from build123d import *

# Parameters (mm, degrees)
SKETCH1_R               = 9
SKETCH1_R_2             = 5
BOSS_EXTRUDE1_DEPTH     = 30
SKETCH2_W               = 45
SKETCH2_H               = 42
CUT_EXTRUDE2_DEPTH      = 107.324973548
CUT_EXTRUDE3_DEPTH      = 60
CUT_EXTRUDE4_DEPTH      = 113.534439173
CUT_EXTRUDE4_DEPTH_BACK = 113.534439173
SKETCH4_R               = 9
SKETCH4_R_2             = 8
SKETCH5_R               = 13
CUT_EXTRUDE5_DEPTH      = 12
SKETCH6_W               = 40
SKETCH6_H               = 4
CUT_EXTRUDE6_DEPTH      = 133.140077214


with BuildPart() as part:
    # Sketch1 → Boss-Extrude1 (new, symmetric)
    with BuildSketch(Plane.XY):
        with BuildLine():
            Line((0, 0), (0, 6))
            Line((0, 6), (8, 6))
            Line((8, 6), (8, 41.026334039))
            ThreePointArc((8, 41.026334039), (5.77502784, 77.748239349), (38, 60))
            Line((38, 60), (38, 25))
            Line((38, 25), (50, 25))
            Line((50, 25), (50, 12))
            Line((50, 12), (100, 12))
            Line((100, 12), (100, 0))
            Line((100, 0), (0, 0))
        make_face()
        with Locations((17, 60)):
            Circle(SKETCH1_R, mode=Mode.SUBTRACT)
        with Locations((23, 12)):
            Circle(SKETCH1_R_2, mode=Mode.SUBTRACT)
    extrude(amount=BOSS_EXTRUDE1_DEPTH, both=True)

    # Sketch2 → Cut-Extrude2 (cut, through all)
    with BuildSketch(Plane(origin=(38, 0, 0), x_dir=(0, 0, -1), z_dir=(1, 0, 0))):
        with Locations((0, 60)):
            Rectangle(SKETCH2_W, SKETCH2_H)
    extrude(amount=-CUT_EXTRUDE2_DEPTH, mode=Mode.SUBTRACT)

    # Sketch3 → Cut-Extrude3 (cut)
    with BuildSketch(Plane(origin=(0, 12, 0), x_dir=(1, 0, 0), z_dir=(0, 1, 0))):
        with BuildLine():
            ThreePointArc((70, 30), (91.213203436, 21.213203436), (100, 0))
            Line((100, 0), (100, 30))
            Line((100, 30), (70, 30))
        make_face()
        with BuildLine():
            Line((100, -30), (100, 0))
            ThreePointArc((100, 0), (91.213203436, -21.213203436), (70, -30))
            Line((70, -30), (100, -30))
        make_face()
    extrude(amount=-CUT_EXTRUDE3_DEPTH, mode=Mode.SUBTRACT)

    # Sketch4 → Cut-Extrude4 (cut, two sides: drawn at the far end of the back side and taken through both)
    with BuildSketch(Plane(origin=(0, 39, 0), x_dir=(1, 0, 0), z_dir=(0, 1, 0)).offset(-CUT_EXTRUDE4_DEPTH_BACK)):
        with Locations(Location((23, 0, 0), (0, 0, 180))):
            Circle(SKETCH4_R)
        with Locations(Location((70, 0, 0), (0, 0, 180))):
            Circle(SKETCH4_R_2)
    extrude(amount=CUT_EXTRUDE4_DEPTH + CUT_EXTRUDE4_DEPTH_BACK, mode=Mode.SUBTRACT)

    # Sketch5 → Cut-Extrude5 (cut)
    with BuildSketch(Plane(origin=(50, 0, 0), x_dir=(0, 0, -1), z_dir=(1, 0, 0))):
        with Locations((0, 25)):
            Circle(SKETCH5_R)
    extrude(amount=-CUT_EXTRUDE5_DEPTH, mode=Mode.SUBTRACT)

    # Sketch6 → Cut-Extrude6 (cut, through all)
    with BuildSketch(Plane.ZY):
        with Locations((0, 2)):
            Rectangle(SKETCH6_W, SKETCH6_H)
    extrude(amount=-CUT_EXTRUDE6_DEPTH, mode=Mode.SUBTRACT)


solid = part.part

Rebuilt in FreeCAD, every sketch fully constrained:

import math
import FreeCAD as App
import Part
import Sketcher
from FreeCAD import Vector


def add_polygon(sketch, points):
    """Adds a closed chain of lines whose ends are joined by coincident constraints."""
    first, n = sketch.GeometryCount, len(points)
    for a, b in zip(points, points[1:] + points[:1]):
        sketch.addGeometry(Part.LineSegment(App.Vector(*a, 0), App.Vector(*b, 0)), False)
    for i in range(n):
        sketch.addConstraint(Sketcher.Constraint("Coincident", first + i, 2, first + (i + 1) % n, 1))

doc = App.newDocument("Part")
body = doc.addObject("PartDesign::Body", "Body")

# Sketch on XY plane
sketch1 = body.newObject("Sketcher::SketchObject", "Sketch")
sketch1.AttachmentSupport = (doc.getObject("XY_Plane"), [""])
sketch1.MapMode = "FlatFace"
sketch1.addGeometry(Part.LineSegment(Vector(0, 6, 0), Vector(0, 0, 0)), False)
sketch1.addGeometry(Part.LineSegment(Vector(0, 0, 0), Vector(100, 0, 0)), False)
sketch1.addGeometry(Part.LineSegment(Vector(100, 0, 0), Vector(100, 12, 0)), False)
sketch1.addGeometry(Part.LineSegment(Vector(100, 12, 0), Vector(50, 12, 0)), False)
sketch1.addGeometry(Part.LineSegment(Vector(50, 12, 0), Vector(50, 25, 0)), False)
sketch1.addGeometry(Part.LineSegment(Vector(50, 25, 0), Vector(38, 25, 0)), False)
sketch1.addGeometry(Part.LineSegment(Vector(38, 25, 0), Vector(38, 60, 0)), False)
sketch1.addGeometry(Part.ArcOfCircle(Part.Circle(Vector(17, 60, 0), Vector(0, 0, 1), 21), math.radians(0), math.radians(245)), False)
sketch1.addGeometry(Part.LineSegment(Vector(8, 41, 0), Vector(8, 6, 0)), False)
sketch1.addGeometry(Part.LineSegment(Vector(8, 6, 0), Vector(0, 6, 0)), False)
sketch1.addGeometry(Part.Circle(Vector(23, 12, 0), Vector(0, 0, 1), 5), False)
sketch1.addGeometry(Part.Circle(Vector(17, 60, 0), Vector(0, 0, 1), 9), False)
sketch1.addConstraint(Sketcher.Constraint("Coincident", 0, 2, 1, 1))
sketch1.addConstraint(Sketcher.Constraint("Coincident", 1, 2, 2, 1))
sketch1.addConstraint(Sketcher.Constraint("Coincident", 2, 2, 3, 1))
sketch1.addConstraint(Sketcher.Constraint("Coincident", 3, 2, 4, 1))
sketch1.addConstraint(Sketcher.Constraint("Coincident", 4, 2, 5, 1))
sketch1.addConstraint(Sketcher.Constraint("Coincident", 5, 2, 6, 1))
sketch1.addConstraint(Sketcher.Constraint("Tangent", 6, 2, 7, 1))
sketch1.addConstraint(Sketcher.Constraint("Coincident", 7, 2, 8, 1))
sketch1.addConstraint(Sketcher.Constraint("Coincident", 8, 2, 9, 1))
sketch1.addConstraint(Sketcher.Constraint("Coincident", 9, 2, 0, 1))
sketch1.addConstraint(Sketcher.Constraint("Vertical", 0))
sketch1.addConstraint(Sketcher.Constraint("Horizontal", 1))
sketch1.addConstraint(Sketcher.Constraint("Vertical", 2))
sketch1.addConstraint(Sketcher.Constraint("Horizontal", 3))
sketch1.addConstraint(Sketcher.Constraint("Vertical", 4))
sketch1.addConstraint(Sketcher.Constraint("Horizontal", 5))
sketch1.addConstraint(Sketcher.Constraint("Vertical", 6))
sketch1.addConstraint(Sketcher.Constraint("Vertical", 8))
sketch1.addConstraint(Sketcher.Constraint("Horizontal", 9))
sketch1.addConstraint(Sketcher.Constraint("Coincident", 0, 2, -1, 1))
sketch1.addConstraint(Sketcher.Constraint("Coincident", 11, 3, 7, 3))
sketch1.addConstraint(Sketcher.Constraint("Horizontal", 10, 3, 2, 2))
sketch1.addConstraint(Sketcher.Constraint("Equal", 5, 2))
sketch1.addConstraint(Sketcher.Constraint("Diameter", 10, 10.0))
sketch1.addConstraint(Sketcher.Constraint("Diameter", 11, 18.0))
sketch1.addConstraint(Sketcher.Constraint("Radius", 7, 21.0))
sketch1.addConstraint(Sketcher.Constraint("DistanceX", 1, 1, 1, 2, 100.0))
sketch1.addConstraint(Sketcher.Constraint("DistanceX", 3, 2, 3, 1, 50.0))
sketch1.addConstraint(Sketcher.Constraint("DistanceX", 5, 2, 5, 1, 12.0))
sketch1.addConstraint(Sketcher.Constraint("DistanceX", 9, 2, 9, 1, 8.0))
sketch1.addConstraint(Sketcher.Constraint("DistanceY", 0, 2, 0, 1, 6.0))
sketch1.addConstraint(Sketcher.Constraint("DistanceY", 4, 1, 4, 2, 13.0))
sketch1.addConstraint(Sketcher.Constraint("DistanceY", 6, 1, 6, 2, 35.0))
sketch1.addConstraint(Sketcher.Constraint("DistanceX", -1, 1, 10, 3, 23.0))
pad1 = body.newObject("PartDesign::Pad", "Pad")
pad1.Profile = sketch1
pad1.Length = 60
pad1.Midplane = True

# Sketch on YZ plane
sketch2 = body.newObject("Sketcher::SketchObject", "Sketch001")
sketch2.AttachmentSupport = (doc.getObject("YZ_Plane"), [""])
sketch2.MapMode = "FlatFace"
sketch2.AttachmentOffset = App.Placement(Vector(0, 0, 38), App.Rotation())
add_polygon(sketch2, [(81, 22), (39, 22), (39, -22), (81, -22)])  # lines 0-3
sketch2.addConstraint(Sketcher.Constraint("Horizontal", 0))
sketch2.addConstraint(Sketcher.Constraint("Vertical", 1))
sketch2.addConstraint(Sketcher.Constraint("Horizontal", 2))
sketch2.addConstraint(Sketcher.Constraint("Vertical", 3))
sketch2.addConstraint(Sketcher.Constraint("DistanceX", 0, 2, 0, 1, 42.0))
sketch2.addConstraint(Sketcher.Constraint("DistanceY", 1, 2, 1, 1, 45.0))
sketch2.addConstraint(Sketcher.Constraint("DistanceX", -1, 1, 0, 2, 39.0))
sketch2.addConstraint(Sketcher.Constraint("DistanceY", -1, 1, 0, 2, 22.5))
pocket1 = body.newObject("PartDesign::Pocket", "Pocket")
pocket1.Profile = sketch2
pocket1.Type = "ThroughAll"

# Sketch on XZ plane
sketch3 = body.newObject("Sketcher::SketchObject", "Sketch002")
sketch3.AttachmentSupport = (doc.getObject("XZ_Plane"), [""])
sketch3.MapMode = "FlatFace"
sketch3.AttachmentOffset = App.Placement(Vector(0, 0, -12), App.Rotation())
sketch3.addGeometry(Part.ArcOfCircle(Part.Circle(Vector(70, 0, 0), Vector(0, 0, 1), 30), math.radians(-90), math.radians(0)), False)
sketch3.addGeometry(Part.LineSegment(Vector(100, 0, 0), Vector(100, -30, 0)), False)
sketch3.addGeometry(Part.LineSegment(Vector(100, -30, 0), Vector(70, -30, 0)), False)
sketch3.addGeometry(Part.LineSegment(Vector(100, 30, 0), Vector(100, 0, 0)), False)
sketch3.addGeometry(Part.ArcOfCircle(Part.Circle(Vector(70, 0, 0), Vector(0, 0, 1), 30), math.radians(0), math.radians(90)), False)
sketch3.addGeometry(Part.LineSegment(Vector(70, 30, 0), Vector(100, 30, 0)), False)
sketch3.addConstraint(Sketcher.Constraint("Tangent", 0, 2, 1, 1))
sketch3.addConstraint(Sketcher.Constraint("Coincident", 1, 2, 2, 1))
sketch3.addConstraint(Sketcher.Constraint("Tangent", 2, 2, 0, 1))
sketch3.addConstraint(Sketcher.Constraint("Tangent", 3, 2, 4, 1))
sketch3.addConstraint(Sketcher.Constraint("Tangent", 4, 2, 5, 1))
sketch3.addConstraint(Sketcher.Constraint("Coincident", 5, 2, 3, 1))
sketch3.addConstraint(Sketcher.Constraint("Vertical", 1))
sketch3.addConstraint(Sketcher.Constraint("Horizontal", 2))
sketch3.addConstraint(Sketcher.Constraint("Vertical", 3))
sketch3.addConstraint(Sketcher.Constraint("Horizontal", 5))
sketch3.addConstraint(Sketcher.Constraint("Coincident", 4, 3, 0, 3))
sketch3.addConstraint(Sketcher.Constraint("Equal", 0, 4))
sketch3.addConstraint(Sketcher.Constraint("PointOnObject", 0, 3, -1))
sketch3.addConstraint(Sketcher.Constraint("Radius", 0, 30.0))
sketch3.addConstraint(Sketcher.Constraint("DistanceX", -1, 1, 0, 3, 70.0))
pocket2 = body.newObject("PartDesign::Pocket", "Pocket001")
pocket2.Profile = sketch3
pocket2.Length = 60
pocket2.Reversed = True

# Sketch on XZ plane
sketch4 = body.newObject("Sketcher::SketchObject", "Sketch003")
sketch4.AttachmentSupport = (doc.getObject("XZ_Plane"), [""])
sketch4.MapMode = "FlatFace"
sketch4.AttachmentOffset = App.Placement(Vector(0, 0, -39), App.Rotation())
sketch4.addGeometry(Part.Circle(Vector(23, 0, 0), Vector(0, 0, 1), 9), False)
sketch4.addGeometry(Part.Circle(Vector(70, 0, 0), Vector(0, 0, 1), 8), False)
sketch4.addConstraint(Sketcher.Constraint("PointOnObject", 0, 3, -1))
sketch4.addConstraint(Sketcher.Constraint("PointOnObject", 1, 3, -1))
sketch4.addConstraint(Sketcher.Constraint("Diameter", 0, 18.0))
sketch4.addConstraint(Sketcher.Constraint("Diameter", 1, 16.0))
sketch4.addConstraint(Sketcher.Constraint("DistanceX", -1, 1, 0, 3, 23.0))
sketch4.addConstraint(Sketcher.Constraint("DistanceX", -1, 1, 1, 3, 70.0))
pocket3 = body.newObject("PartDesign::Pocket", "Pocket002")
pocket3.Profile = sketch4
pocket3.Type = "ThroughAll"
pocket3.Midplane = True

# Sketch on YZ plane
sketch5 = body.newObject("Sketcher::SketchObject", "Sketch004")
sketch5.AttachmentSupport = (doc.getObject("YZ_Plane"), [""])
sketch5.MapMode = "FlatFace"
sketch5.AttachmentOffset = App.Placement(Vector(0, 0, 50), App.Rotation())
sketch5.addGeometry(Part.Circle(Vector(25, 0, 0), Vector(0, 0, 1), 13), False)
sketch5.addConstraint(Sketcher.Constraint("PointOnObject", 0, 3, -1))
sketch5.addConstraint(Sketcher.Constraint("Diameter", 0, 26.0))
sketch5.addConstraint(Sketcher.Constraint("DistanceX", -1, 1, 0, 3, 25.0))
pocket4 = body.newObject("PartDesign::Pocket", "Pocket003")
pocket4.Profile = sketch5
pocket4.Length = 12

# Sketch on YZ plane
sketch6 = body.newObject("Sketcher::SketchObject", "Sketch005")
sketch6.AttachmentSupport = (doc.getObject("YZ_Plane"), [""])
sketch6.MapMode = "FlatFace"
add_polygon(sketch6, [(4, -20), (0, -20), (0, 20), (4, 20)])  # lines 0-3
sketch6.addConstraint(Sketcher.Constraint("Horizontal", 0))
sketch6.addConstraint(Sketcher.Constraint("Vertical", 1))
sketch6.addConstraint(Sketcher.Constraint("Horizontal", 2))
sketch6.addConstraint(Sketcher.Constraint("Vertical", 3))
sketch6.addConstraint(Sketcher.Constraint("Symmetric", 0, 2, 1, 2, -1, 1))
sketch6.addConstraint(Sketcher.Constraint("DistanceX", 0, 2, 0, 1, 4.0))
sketch6.addConstraint(Sketcher.Constraint("DistanceY", 1, 1, 1, 2, 40.0))
pocket5 = body.newObject("PartDesign::Pocket", "Pocket004")
pocket5.Profile = sketch6
pocket5.Type = "ThroughAll"
pocket5.Reversed = True

doc.recompute()
